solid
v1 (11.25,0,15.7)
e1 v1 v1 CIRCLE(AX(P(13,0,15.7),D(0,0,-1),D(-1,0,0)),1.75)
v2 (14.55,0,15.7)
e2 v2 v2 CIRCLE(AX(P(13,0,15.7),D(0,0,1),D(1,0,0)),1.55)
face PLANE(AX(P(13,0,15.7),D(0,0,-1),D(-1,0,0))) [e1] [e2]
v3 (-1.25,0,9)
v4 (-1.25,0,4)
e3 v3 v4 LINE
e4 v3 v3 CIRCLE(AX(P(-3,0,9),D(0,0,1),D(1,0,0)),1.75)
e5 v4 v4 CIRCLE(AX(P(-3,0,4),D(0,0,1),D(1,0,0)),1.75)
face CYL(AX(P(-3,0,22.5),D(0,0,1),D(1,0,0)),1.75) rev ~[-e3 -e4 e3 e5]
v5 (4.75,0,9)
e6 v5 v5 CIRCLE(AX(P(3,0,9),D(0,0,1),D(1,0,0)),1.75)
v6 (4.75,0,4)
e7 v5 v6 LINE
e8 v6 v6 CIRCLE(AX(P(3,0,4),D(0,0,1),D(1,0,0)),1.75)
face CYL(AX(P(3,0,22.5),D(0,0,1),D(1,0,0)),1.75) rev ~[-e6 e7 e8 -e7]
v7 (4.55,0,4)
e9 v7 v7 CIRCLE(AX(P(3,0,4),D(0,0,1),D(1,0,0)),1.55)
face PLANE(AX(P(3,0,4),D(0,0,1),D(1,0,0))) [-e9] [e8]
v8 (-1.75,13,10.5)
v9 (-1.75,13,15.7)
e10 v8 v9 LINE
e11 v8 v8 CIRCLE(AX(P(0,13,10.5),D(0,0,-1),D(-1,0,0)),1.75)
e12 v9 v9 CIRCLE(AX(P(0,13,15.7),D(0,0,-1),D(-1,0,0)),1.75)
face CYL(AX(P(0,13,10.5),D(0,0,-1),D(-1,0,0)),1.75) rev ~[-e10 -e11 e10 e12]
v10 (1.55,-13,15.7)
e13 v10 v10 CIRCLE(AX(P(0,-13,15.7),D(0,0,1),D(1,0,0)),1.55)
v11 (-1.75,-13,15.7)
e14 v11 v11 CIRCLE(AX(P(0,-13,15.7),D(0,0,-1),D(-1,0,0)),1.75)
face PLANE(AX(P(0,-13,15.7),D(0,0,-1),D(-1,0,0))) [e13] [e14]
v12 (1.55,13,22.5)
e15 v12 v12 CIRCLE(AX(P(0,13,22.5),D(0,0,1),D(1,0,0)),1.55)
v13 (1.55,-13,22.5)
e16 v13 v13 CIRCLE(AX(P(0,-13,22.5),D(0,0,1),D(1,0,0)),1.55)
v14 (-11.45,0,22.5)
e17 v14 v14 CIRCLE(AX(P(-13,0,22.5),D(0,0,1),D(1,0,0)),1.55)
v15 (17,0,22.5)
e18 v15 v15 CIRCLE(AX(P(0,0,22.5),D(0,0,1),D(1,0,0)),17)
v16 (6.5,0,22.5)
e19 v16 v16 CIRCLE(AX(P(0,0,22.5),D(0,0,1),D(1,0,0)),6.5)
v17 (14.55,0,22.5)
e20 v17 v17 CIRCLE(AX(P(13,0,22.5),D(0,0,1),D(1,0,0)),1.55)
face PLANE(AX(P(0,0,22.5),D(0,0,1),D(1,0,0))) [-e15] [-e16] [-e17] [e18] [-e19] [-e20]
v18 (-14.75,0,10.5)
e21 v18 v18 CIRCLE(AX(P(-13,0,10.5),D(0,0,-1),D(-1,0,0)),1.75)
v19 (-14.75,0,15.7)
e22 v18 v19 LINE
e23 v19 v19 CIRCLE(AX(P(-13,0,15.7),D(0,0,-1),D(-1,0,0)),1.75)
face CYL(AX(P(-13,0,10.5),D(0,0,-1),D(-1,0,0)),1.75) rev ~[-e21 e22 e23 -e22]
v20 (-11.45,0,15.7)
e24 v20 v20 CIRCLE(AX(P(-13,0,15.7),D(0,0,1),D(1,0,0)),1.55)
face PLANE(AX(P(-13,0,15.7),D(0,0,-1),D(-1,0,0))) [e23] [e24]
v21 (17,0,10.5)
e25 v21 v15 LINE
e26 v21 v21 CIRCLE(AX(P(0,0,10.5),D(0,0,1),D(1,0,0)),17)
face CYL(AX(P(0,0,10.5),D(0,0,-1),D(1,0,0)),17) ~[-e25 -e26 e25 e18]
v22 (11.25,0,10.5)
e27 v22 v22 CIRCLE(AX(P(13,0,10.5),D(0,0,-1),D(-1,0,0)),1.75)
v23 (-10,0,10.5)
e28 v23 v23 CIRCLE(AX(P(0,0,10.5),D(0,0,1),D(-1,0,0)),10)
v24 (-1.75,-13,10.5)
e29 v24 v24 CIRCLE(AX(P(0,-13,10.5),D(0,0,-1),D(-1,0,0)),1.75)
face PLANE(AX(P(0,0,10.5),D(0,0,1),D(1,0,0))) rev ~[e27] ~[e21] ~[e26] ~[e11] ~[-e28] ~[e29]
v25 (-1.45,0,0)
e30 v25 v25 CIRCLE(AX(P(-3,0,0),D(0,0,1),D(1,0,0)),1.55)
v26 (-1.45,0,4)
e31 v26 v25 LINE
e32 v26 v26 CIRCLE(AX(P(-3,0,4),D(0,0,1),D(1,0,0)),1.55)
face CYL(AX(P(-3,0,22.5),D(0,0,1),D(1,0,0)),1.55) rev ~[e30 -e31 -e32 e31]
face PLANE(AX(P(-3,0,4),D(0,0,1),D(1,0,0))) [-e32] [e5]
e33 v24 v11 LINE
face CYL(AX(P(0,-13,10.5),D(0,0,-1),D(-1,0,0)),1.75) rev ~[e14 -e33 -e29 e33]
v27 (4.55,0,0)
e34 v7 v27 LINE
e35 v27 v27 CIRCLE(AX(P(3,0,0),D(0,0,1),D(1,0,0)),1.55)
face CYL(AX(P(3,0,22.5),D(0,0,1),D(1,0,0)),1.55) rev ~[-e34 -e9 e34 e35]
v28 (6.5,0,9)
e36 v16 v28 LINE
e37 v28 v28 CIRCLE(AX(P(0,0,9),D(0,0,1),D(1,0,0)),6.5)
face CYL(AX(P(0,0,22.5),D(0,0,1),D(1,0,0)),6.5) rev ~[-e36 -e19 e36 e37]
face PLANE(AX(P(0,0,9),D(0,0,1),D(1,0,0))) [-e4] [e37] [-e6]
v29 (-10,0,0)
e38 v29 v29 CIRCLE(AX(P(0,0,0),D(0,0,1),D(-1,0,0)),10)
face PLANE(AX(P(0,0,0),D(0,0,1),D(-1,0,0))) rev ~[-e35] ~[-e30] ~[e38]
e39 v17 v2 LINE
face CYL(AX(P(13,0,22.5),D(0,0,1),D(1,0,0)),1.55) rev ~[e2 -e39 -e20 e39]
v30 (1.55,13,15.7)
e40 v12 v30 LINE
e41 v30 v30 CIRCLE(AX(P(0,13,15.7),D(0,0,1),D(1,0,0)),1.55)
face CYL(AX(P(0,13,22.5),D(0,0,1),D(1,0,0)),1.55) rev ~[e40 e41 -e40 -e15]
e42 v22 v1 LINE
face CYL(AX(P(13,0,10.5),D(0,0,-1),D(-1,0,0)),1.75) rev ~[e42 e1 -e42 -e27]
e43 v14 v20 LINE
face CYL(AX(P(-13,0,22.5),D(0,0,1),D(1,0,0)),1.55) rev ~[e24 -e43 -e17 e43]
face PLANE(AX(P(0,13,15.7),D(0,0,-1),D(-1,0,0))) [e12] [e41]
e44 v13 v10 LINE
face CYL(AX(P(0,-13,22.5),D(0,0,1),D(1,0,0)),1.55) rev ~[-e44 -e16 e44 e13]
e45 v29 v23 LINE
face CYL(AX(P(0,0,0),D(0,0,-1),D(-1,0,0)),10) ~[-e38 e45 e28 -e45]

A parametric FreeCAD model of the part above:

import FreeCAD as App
import Part
import Sketcher
from FreeCAD import Vector

doc = App.newDocument("Part")
body = doc.addObject("PartDesign::Body", "Body")

sketch1 = doc.addObject("Sketcher::SketchObject", "Sketch")
body.addObject(sketch1)
sketch1.AttachmentSupport = (doc.XY_Plane, [""])
sketch1.MapMode = "FlatFace"
sketch1.addGeometry(Part.Circle(Vector(0, 0, 0), Vector(0, 0, 1), 10), False)
sketch1.addConstraint(Sketcher.Constraint("Coincident", 0, 3, -1, 1))
sketch1.addConstraint(Sketcher.Constraint("Diameter", 0, 20.0))
pad1 = doc.addObject("PartDesign::Pad", "Pad")
body.addObject(pad1)
pad1.Profile = sketch1
pad1.Length = 10.5

sketch2 = doc.addObject("Sketcher::SketchObject", "Sketch001")
body.addObject(sketch2)
sketch2.AttachmentSupport = (doc.XY_Plane, [""])
sketch2.MapMode = "FlatFace"
sketch2.AttachmentOffset = App.Placement(Vector(0, 0, 10.5), App.Rotation())
sketch2.addGeometry(Part.Circle(Vector(0, 0, 0), Vector(0, 0, 1), 17), False)
sketch2.addConstraint(Sketcher.Constraint("Coincident", 0, 3, -1, 1))
sketch2.addConstraint(Sketcher.Constraint("Diameter", 0, 34.0))
pad2 = doc.addObject("PartDesign::Pad", "Pad001")
body.addObject(pad2)
pad2.Profile = sketch2
pad2.Length = 12

sketch3 = doc.addObject("Sketcher::SketchObject", "Sketch002")
body.addObject(sketch3)
sketch3.AttachmentSupport = (doc.XY_Plane, [""])
sketch3.MapMode = "FlatFace"
sketch3.AttachmentOffset = App.Placement(Vector(0, 0, 22.5), App.Rotation())
sketch3.addGeometry(Part.Circle(Vector(3, 0, 0), Vector(0, 0, 1), 1.6), False)
sketch3.addGeometry(Part.Circle(Vector(-3, 0, 0), Vector(0, 0, 1), 1.6), False)
sketch3.addConstraint(Sketcher.Constraint("Equal", 0, 1))
sketch3.addConstraint(Sketcher.Constraint("Symmetric", 0, 3, 1, 3, -1, 1))
sketch3.addConstraint(Sketcher.Constraint("PointOnObject", 0, 3, -1))
sketch3.addConstraint(Sketcher.Constraint("Diameter", 0, 3.1))
sketch3.addConstraint(Sketcher.Constraint("DistanceX", -1, 1, 0, 3, 3.0))
pocket1 = doc.addObject("PartDesign::Pocket", "Pocket")
body.addObject(pocket1)
pocket1.Profile = sketch3
pocket1.Type = "ThroughAll"

sketch4 = doc.addObject("Sketcher::SketchObject", "Sketch003")
body.addObject(sketch4)
sketch4.AttachmentSupport = (doc.XY_Plane, [""])
sketch4.MapMode = "FlatFace"
sketch4.AttachmentOffset = App.Placement(Vector(0, 0, 22.5), App.Rotation())
sketch4.addGeometry(Part.Circle(Vector(13, 0, 0), Vector(0, 0, 1), 1.6), False)
sketch4.addGeometry(Part.Circle(Vector(0, -13, 0), Vector(0, 0, 1), 1.6), False)
sketch4.addGeometry(Part.Circle(Vector(-13, 0, 0), Vector(0, 0, 1), 1.6), False)
sketch4.addGeometry(Part.Circle(Vector(0, 13, 0), Vector(0, 0, 1), 1.6), False)
sketch4.addConstraint(Sketcher.Constraint("Equal", 0, 1))
sketch4.addConstraint(Sketcher.Constraint("Equal", 1, 2))
sketch4.addConstraint(Sketcher.Constraint("Equal", 2, 3))
sketch4.addConstraint(Sketcher.Constraint("Symmetric", 0, 3, 2, 3, -1, 1))
sketch4.addConstraint(Sketcher.Constraint("Symmetric", 1, 3, 3, 3, -1, 1))
sketch4.addConstraint(Sketcher.Constraint("PointOnObject", 0, 3, -1))
sketch4.addConstraint(Sketcher.Constraint("PointOnObject", 1, 3, -2))
sketch4.addConstraint(Sketcher.Constraint("Diameter", 0, 3.1))
sketch4.addConstraint(Sketcher.Constraint("DistanceX", -1, 1, 0, 3, 13.0))
sketch4.addConstraint(Sketcher.Constraint("DistanceY", 1, 3, -1, 1, 13.0))
pocket2 = doc.addObject("PartDesign::Pocket", "Pocket001")
body.addObject(pocket2)
pocket2.Profile = sketch4
pocket2.Type = "ThroughAll"

sketch5 = doc.addObject("Sketcher::SketchObject", "Sketch004")
body.addObject(sketch5)
sketch5.AttachmentSupport = (doc.XY_Plane, [""])
sketch5.MapMode = "FlatFace"
sketch5.AttachmentOffset = App.Placement(Vector(0, 0, 10.5), App.Rotation())
sketch5.addGeometry(Part.Circle(Vector(-13, 0, 0), Vector(0, 0, 1), 1.8), False)
sketch5.addGeometry(Part.Circle(Vector(0, -13, 0), Vector(0, 0, 1), 1.8), False)
sketch5.addGeometry(Part.Circle(Vector(13, 0, 0), Vector(0, 0, 1), 1.8), False)
sketch5.addGeometry(Part.Circle(Vector(0, 13, 0), Vector(0, 0, 1), 1.8), False)
sketch5.addConstraint(Sketcher.Constraint("Equal", 0, 1))
sketch5.addConstraint(Sketcher.Constraint("Equal", 1, 2))
sketch5.addConstraint(Sketcher.Constraint("Equal", 2, 3))
sketch5.addConstraint(Sketcher.Constraint("Symmetric", 0, 3, 2, 3, -1, 1))
sketch5.addConstraint(Sketcher.Constraint("Symmetric", 1, 3, 3, 3, -1, 1))
sketch5.addConstraint(Sketcher.Constraint("PointOnObject", 0, 3, -1))
sketch5.addConstraint(Sketcher.Constraint("PointOnObject", 1, 3, -2))
sketch5.addConstraint(Sketcher.Constraint("Diameter", 0, 3.5))
sketch5.addConstraint(Sketcher.Constraint("DistanceX", 0, 3, -1, 1, 13.0))
sketch5.addConstraint(Sketcher.Constraint("DistanceY", 1, 3, -1, 1, 13.0))
pocket3 = doc.addObject("PartDesign::Pocket", "Pocket002")
body.addObject(pocket3)
pocket3.Profile = sketch5
pocket3.Length = 5.2
pocket3.Reversed = True

sketch6 = doc.addObject("Sketcher::SketchObject", "Sketch005")
body.addObject(sketch6)
sketch6.AttachmentSupport = (doc.XY_Plane, [""])
sketch6.MapMode = "FlatFace"
sketch6.AttachmentOffset = App.Placement(Vector(0, 0, 22.5), App.Rotation())
sketch6.addGeometry(Part.Circle(Vector(3, 0, 0), Vector(0, 0, 1), 1.8), False)
sketch6.addGeometry(Part.Circle(Vector(-3, 0, 0), Vector(0, 0, 1), 1.8), False)
sketch6.addConstraint(Sketcher.Constraint("Equal", 0, 1))
sketch6.addConstraint(Sketcher.Constraint("Symmetric", 0, 3, 1, 3, -1, 1))
sketch6.addConstraint(Sketcher.Constraint("PointOnObject", 0, 3, -1))
sketch6.addConstraint(Sketcher.Constraint("Diameter", 0, 3.5))
sketch6.addConstraint(Sketcher.Constraint("DistanceX", -1, 1, 0, 3, 3.0))
pocket4 = doc.addObject("PartDesign::Pocket", "Pocket003")
body.addObject(pocket4)
pocket4.Profile = sketch6
pocket4.Length = 18.5

sketch7 = doc.addObject("Sketcher::SketchObject", "Sketch006")
body.addObject(sketch7)
sketch7.AttachmentSupport = (doc.XY_Plane, [""])
sketch7.MapMode = "FlatFace"
sketch7.AttachmentOffset = App.Placement(Vector(0, 0, 22.5), App.Rotation())
sketch7.addGeometry(Part.Circle(Vector(0, 0, 0), Vector(0, 0, 1), 6), False)
sketch7.addConstraint(Sketcher.Constraint("Coincident", 0, 3, -1, 1))
sketch7.addConstraint(Sketcher.Constraint("Diameter", 0, 13.0))
pocket5 = doc.addObject("PartDesign::Pocket", "Pocket004")
body.addObject(pocket5)
pocket5.Profile = sketch7
pocket5.Length = 13.5

doc.recompute()
